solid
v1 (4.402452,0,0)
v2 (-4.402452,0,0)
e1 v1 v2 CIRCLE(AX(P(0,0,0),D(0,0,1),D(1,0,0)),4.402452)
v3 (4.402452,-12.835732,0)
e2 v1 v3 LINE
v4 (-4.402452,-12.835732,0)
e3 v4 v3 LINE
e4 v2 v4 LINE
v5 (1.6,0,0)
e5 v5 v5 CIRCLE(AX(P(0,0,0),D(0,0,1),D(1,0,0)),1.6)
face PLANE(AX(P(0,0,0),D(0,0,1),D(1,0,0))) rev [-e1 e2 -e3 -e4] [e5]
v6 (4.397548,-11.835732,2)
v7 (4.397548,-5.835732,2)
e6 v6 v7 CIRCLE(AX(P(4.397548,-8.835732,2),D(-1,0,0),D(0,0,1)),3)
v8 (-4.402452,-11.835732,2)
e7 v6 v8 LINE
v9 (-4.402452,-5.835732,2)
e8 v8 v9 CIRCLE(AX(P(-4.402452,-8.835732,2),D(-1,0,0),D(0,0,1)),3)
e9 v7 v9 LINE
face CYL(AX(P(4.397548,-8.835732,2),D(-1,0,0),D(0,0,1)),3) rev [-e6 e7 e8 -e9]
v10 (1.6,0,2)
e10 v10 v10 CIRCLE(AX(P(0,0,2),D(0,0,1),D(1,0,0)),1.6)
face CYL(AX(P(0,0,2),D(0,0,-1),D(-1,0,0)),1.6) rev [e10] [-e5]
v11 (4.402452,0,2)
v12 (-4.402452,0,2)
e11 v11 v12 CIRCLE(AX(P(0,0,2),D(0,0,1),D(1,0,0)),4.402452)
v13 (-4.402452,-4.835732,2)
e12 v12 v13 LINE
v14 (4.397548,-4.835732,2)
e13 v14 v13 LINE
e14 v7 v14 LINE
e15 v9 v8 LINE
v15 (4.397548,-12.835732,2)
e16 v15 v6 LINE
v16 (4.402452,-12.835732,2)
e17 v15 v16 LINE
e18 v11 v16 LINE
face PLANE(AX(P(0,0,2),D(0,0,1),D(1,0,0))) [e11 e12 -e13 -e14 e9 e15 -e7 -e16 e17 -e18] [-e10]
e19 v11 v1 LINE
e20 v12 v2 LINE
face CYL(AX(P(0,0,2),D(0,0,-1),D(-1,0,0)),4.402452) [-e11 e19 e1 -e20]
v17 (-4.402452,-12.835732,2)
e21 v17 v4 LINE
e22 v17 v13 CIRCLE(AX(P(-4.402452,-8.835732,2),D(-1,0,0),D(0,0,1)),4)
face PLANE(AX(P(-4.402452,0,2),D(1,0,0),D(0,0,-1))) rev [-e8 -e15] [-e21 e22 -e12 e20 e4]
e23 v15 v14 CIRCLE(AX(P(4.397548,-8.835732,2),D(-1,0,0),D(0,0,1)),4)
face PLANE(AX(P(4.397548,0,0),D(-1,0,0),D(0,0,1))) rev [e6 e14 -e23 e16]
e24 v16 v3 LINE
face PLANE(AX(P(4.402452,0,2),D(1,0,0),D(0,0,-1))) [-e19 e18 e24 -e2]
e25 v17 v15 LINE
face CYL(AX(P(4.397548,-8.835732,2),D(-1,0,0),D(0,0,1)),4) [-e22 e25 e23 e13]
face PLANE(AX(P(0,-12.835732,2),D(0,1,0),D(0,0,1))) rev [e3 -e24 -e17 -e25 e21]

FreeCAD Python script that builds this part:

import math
import FreeCAD as App
import Part
import Sketcher

V = App.Vector
Q = App.Units.Quantity

doc = App.newDocument("Part")
body = doc.addObject("PartDesign::Body", "Body")

# Sketch on XY plane
sketch1 = doc.addObject("Sketcher::SketchObject", "Sketch")
body.addObject(sketch1)
sketch1.AttachmentSupport = (doc.XY_Plane, [""])
sketch1.MapMode = "FlatFace"
sketch1.addGeometry([
    Part.ArcOfCircle(Part.Circle(V(0, 0, 0), V(0, 0, 1), 4.4), math.radians(0), math.radians(180)),  # 0
    Part.LineSegment(V(-4.4, 0, 0), V(-4.4, -12.8, 0)),  # 1
    Part.LineSegment(V(-4.4, -12.8, 0), V(4.4, -12.8, 0)),  # 2
    Part.LineSegment(V(4.4, -12.8, 0), V(4.4, 0, 0)),  # 3
    Part.Circle(V(0, 0, 0), V(0, 0, 1), 1.6),  # 4
], False)
sketch1.addConstraint([
    Sketcher.Constraint("Tangent", 0, 2, 1, 1),
    Sketcher.Constraint("Coincident", 1, 2, 2, 1),
    Sketcher.Constraint("Coincident", 2, 2, 3, 1),
    Sketcher.Constraint("Tangent", 3, 2, 0, 1),
    Sketcher.Constraint("Vertical", 1),
    Sketcher.Constraint("Horizontal", 2),
    Sketcher.Constraint("Vertical", 3),
    Sketcher.Constraint("Coincident", 0, 3, -1, 1),
    Sketcher.Constraint("Coincident", 4, 3, -1, 1),
    Sketcher.Constraint("Diameter", 4, Q("3.2 mm")),
    Sketcher.Constraint("Radius", 0, Q("4.402452 mm")),
    Sketcher.Constraint("DistanceY", 1, 2, 1, 1, Q("12.835732 mm")),
])
pad1 = doc.addObject("PartDesign::Pad", "Pad")
body.addObject(pad1)
pad1.Profile = sketch1
pad1.Length = 2

# Sketch on YZ plane
sketch2 = doc.addObject("Sketcher::SketchObject", "Sketch001")
body.addObject(sketch2)
sketch2.AttachmentSupport = (doc.YZ_Plane, [""])
sketch2.MapMode = "FlatFace"
sketch2.AttachmentOffset = App.Placement(V(0, 0, -4.402452), App.Rotation())
sketch2.addGeometry([
    Part.ArcOfCircle(Part.Circle(V(-8.8, 2, 0), V(0, 0, 1), 4), math.radians(0), math.radians(90)),  # 0
    Part.LineSegment(V(-4.8, 2, 0), V(-5.8, 2, 0)),  # 1
    Part.ArcOfCircle(Part.Circle(V(-8.8, 2, 0), V(0, 0, 1), 3), math.radians(0), math.radians(90)),  # 2
    Part.ArcOfCircle(Part.Circle(V(-8.8, 2, 0), V(0, 0, 1), 3), math.radians(90), math.radians(180)),  # 3
    Part.LineSegment(V(-11.8, 2, 0), V(-12.8, 2, 0)),  # 4
    Part.ArcOfCircle(Part.Circle(V(-8.8, 2, 0), V(0, 0, 1), 4), math.radians(90), math.radians(180)),  # 5
], False)
sketch2.addConstraint([
    Sketcher.Constraint("Coincident", 0, 1, 1, 1),
    Sketcher.Constraint("Coincident", 1, 2, 2, 1),
    Sketcher.Constraint("Tangent", 2, 2, 3, 1),
    Sketcher.Constraint("Coincident", 3, 2, 4, 1),
    Sketcher.Constraint("Coincident", 4, 2, 5, 2),
    Sketcher.Constraint("Tangent", 5, 1, 0, 2),
    Sketcher.Constraint("Horizontal", 1),
    Sketcher.Constraint("Horizontal", 4),
    Sketcher.Constraint("Coincident", 2, 3, 0, 3),
    Sketcher.Constraint("Equal", 2, 3),
    Sketcher.Constraint("Equal", 0, 5),
    Sketcher.Constraint("Horizontal", 5, 3, 0, 1),
    Sketcher.Constraint("Horizontal", 1, 2, 3, 2),
    Sketcher.Constraint("Vertical", 5, 3, 2, 2),
    Sketcher.Constraint("Vertical", 2, 2, 5, 1),
    Sketcher.Constraint("Radius", 0, Q("4 mm")),
    Sketcher.Constraint("Radius", 2, Q("3 mm")),
    Sketcher.Constraint("DistanceY", -1, 1, 0, 3, Q("2 mm")),
    Sketcher.Constraint("DistanceX", 0, 3, -1, 1, Q("8.835732 mm")),
])
pad2 = doc.addObject("PartDesign::Pad", "Pad001")
body.addObject(pad2)
pad2.Profile = sketch2
pad2.Length = 8.8

doc.recompute()
